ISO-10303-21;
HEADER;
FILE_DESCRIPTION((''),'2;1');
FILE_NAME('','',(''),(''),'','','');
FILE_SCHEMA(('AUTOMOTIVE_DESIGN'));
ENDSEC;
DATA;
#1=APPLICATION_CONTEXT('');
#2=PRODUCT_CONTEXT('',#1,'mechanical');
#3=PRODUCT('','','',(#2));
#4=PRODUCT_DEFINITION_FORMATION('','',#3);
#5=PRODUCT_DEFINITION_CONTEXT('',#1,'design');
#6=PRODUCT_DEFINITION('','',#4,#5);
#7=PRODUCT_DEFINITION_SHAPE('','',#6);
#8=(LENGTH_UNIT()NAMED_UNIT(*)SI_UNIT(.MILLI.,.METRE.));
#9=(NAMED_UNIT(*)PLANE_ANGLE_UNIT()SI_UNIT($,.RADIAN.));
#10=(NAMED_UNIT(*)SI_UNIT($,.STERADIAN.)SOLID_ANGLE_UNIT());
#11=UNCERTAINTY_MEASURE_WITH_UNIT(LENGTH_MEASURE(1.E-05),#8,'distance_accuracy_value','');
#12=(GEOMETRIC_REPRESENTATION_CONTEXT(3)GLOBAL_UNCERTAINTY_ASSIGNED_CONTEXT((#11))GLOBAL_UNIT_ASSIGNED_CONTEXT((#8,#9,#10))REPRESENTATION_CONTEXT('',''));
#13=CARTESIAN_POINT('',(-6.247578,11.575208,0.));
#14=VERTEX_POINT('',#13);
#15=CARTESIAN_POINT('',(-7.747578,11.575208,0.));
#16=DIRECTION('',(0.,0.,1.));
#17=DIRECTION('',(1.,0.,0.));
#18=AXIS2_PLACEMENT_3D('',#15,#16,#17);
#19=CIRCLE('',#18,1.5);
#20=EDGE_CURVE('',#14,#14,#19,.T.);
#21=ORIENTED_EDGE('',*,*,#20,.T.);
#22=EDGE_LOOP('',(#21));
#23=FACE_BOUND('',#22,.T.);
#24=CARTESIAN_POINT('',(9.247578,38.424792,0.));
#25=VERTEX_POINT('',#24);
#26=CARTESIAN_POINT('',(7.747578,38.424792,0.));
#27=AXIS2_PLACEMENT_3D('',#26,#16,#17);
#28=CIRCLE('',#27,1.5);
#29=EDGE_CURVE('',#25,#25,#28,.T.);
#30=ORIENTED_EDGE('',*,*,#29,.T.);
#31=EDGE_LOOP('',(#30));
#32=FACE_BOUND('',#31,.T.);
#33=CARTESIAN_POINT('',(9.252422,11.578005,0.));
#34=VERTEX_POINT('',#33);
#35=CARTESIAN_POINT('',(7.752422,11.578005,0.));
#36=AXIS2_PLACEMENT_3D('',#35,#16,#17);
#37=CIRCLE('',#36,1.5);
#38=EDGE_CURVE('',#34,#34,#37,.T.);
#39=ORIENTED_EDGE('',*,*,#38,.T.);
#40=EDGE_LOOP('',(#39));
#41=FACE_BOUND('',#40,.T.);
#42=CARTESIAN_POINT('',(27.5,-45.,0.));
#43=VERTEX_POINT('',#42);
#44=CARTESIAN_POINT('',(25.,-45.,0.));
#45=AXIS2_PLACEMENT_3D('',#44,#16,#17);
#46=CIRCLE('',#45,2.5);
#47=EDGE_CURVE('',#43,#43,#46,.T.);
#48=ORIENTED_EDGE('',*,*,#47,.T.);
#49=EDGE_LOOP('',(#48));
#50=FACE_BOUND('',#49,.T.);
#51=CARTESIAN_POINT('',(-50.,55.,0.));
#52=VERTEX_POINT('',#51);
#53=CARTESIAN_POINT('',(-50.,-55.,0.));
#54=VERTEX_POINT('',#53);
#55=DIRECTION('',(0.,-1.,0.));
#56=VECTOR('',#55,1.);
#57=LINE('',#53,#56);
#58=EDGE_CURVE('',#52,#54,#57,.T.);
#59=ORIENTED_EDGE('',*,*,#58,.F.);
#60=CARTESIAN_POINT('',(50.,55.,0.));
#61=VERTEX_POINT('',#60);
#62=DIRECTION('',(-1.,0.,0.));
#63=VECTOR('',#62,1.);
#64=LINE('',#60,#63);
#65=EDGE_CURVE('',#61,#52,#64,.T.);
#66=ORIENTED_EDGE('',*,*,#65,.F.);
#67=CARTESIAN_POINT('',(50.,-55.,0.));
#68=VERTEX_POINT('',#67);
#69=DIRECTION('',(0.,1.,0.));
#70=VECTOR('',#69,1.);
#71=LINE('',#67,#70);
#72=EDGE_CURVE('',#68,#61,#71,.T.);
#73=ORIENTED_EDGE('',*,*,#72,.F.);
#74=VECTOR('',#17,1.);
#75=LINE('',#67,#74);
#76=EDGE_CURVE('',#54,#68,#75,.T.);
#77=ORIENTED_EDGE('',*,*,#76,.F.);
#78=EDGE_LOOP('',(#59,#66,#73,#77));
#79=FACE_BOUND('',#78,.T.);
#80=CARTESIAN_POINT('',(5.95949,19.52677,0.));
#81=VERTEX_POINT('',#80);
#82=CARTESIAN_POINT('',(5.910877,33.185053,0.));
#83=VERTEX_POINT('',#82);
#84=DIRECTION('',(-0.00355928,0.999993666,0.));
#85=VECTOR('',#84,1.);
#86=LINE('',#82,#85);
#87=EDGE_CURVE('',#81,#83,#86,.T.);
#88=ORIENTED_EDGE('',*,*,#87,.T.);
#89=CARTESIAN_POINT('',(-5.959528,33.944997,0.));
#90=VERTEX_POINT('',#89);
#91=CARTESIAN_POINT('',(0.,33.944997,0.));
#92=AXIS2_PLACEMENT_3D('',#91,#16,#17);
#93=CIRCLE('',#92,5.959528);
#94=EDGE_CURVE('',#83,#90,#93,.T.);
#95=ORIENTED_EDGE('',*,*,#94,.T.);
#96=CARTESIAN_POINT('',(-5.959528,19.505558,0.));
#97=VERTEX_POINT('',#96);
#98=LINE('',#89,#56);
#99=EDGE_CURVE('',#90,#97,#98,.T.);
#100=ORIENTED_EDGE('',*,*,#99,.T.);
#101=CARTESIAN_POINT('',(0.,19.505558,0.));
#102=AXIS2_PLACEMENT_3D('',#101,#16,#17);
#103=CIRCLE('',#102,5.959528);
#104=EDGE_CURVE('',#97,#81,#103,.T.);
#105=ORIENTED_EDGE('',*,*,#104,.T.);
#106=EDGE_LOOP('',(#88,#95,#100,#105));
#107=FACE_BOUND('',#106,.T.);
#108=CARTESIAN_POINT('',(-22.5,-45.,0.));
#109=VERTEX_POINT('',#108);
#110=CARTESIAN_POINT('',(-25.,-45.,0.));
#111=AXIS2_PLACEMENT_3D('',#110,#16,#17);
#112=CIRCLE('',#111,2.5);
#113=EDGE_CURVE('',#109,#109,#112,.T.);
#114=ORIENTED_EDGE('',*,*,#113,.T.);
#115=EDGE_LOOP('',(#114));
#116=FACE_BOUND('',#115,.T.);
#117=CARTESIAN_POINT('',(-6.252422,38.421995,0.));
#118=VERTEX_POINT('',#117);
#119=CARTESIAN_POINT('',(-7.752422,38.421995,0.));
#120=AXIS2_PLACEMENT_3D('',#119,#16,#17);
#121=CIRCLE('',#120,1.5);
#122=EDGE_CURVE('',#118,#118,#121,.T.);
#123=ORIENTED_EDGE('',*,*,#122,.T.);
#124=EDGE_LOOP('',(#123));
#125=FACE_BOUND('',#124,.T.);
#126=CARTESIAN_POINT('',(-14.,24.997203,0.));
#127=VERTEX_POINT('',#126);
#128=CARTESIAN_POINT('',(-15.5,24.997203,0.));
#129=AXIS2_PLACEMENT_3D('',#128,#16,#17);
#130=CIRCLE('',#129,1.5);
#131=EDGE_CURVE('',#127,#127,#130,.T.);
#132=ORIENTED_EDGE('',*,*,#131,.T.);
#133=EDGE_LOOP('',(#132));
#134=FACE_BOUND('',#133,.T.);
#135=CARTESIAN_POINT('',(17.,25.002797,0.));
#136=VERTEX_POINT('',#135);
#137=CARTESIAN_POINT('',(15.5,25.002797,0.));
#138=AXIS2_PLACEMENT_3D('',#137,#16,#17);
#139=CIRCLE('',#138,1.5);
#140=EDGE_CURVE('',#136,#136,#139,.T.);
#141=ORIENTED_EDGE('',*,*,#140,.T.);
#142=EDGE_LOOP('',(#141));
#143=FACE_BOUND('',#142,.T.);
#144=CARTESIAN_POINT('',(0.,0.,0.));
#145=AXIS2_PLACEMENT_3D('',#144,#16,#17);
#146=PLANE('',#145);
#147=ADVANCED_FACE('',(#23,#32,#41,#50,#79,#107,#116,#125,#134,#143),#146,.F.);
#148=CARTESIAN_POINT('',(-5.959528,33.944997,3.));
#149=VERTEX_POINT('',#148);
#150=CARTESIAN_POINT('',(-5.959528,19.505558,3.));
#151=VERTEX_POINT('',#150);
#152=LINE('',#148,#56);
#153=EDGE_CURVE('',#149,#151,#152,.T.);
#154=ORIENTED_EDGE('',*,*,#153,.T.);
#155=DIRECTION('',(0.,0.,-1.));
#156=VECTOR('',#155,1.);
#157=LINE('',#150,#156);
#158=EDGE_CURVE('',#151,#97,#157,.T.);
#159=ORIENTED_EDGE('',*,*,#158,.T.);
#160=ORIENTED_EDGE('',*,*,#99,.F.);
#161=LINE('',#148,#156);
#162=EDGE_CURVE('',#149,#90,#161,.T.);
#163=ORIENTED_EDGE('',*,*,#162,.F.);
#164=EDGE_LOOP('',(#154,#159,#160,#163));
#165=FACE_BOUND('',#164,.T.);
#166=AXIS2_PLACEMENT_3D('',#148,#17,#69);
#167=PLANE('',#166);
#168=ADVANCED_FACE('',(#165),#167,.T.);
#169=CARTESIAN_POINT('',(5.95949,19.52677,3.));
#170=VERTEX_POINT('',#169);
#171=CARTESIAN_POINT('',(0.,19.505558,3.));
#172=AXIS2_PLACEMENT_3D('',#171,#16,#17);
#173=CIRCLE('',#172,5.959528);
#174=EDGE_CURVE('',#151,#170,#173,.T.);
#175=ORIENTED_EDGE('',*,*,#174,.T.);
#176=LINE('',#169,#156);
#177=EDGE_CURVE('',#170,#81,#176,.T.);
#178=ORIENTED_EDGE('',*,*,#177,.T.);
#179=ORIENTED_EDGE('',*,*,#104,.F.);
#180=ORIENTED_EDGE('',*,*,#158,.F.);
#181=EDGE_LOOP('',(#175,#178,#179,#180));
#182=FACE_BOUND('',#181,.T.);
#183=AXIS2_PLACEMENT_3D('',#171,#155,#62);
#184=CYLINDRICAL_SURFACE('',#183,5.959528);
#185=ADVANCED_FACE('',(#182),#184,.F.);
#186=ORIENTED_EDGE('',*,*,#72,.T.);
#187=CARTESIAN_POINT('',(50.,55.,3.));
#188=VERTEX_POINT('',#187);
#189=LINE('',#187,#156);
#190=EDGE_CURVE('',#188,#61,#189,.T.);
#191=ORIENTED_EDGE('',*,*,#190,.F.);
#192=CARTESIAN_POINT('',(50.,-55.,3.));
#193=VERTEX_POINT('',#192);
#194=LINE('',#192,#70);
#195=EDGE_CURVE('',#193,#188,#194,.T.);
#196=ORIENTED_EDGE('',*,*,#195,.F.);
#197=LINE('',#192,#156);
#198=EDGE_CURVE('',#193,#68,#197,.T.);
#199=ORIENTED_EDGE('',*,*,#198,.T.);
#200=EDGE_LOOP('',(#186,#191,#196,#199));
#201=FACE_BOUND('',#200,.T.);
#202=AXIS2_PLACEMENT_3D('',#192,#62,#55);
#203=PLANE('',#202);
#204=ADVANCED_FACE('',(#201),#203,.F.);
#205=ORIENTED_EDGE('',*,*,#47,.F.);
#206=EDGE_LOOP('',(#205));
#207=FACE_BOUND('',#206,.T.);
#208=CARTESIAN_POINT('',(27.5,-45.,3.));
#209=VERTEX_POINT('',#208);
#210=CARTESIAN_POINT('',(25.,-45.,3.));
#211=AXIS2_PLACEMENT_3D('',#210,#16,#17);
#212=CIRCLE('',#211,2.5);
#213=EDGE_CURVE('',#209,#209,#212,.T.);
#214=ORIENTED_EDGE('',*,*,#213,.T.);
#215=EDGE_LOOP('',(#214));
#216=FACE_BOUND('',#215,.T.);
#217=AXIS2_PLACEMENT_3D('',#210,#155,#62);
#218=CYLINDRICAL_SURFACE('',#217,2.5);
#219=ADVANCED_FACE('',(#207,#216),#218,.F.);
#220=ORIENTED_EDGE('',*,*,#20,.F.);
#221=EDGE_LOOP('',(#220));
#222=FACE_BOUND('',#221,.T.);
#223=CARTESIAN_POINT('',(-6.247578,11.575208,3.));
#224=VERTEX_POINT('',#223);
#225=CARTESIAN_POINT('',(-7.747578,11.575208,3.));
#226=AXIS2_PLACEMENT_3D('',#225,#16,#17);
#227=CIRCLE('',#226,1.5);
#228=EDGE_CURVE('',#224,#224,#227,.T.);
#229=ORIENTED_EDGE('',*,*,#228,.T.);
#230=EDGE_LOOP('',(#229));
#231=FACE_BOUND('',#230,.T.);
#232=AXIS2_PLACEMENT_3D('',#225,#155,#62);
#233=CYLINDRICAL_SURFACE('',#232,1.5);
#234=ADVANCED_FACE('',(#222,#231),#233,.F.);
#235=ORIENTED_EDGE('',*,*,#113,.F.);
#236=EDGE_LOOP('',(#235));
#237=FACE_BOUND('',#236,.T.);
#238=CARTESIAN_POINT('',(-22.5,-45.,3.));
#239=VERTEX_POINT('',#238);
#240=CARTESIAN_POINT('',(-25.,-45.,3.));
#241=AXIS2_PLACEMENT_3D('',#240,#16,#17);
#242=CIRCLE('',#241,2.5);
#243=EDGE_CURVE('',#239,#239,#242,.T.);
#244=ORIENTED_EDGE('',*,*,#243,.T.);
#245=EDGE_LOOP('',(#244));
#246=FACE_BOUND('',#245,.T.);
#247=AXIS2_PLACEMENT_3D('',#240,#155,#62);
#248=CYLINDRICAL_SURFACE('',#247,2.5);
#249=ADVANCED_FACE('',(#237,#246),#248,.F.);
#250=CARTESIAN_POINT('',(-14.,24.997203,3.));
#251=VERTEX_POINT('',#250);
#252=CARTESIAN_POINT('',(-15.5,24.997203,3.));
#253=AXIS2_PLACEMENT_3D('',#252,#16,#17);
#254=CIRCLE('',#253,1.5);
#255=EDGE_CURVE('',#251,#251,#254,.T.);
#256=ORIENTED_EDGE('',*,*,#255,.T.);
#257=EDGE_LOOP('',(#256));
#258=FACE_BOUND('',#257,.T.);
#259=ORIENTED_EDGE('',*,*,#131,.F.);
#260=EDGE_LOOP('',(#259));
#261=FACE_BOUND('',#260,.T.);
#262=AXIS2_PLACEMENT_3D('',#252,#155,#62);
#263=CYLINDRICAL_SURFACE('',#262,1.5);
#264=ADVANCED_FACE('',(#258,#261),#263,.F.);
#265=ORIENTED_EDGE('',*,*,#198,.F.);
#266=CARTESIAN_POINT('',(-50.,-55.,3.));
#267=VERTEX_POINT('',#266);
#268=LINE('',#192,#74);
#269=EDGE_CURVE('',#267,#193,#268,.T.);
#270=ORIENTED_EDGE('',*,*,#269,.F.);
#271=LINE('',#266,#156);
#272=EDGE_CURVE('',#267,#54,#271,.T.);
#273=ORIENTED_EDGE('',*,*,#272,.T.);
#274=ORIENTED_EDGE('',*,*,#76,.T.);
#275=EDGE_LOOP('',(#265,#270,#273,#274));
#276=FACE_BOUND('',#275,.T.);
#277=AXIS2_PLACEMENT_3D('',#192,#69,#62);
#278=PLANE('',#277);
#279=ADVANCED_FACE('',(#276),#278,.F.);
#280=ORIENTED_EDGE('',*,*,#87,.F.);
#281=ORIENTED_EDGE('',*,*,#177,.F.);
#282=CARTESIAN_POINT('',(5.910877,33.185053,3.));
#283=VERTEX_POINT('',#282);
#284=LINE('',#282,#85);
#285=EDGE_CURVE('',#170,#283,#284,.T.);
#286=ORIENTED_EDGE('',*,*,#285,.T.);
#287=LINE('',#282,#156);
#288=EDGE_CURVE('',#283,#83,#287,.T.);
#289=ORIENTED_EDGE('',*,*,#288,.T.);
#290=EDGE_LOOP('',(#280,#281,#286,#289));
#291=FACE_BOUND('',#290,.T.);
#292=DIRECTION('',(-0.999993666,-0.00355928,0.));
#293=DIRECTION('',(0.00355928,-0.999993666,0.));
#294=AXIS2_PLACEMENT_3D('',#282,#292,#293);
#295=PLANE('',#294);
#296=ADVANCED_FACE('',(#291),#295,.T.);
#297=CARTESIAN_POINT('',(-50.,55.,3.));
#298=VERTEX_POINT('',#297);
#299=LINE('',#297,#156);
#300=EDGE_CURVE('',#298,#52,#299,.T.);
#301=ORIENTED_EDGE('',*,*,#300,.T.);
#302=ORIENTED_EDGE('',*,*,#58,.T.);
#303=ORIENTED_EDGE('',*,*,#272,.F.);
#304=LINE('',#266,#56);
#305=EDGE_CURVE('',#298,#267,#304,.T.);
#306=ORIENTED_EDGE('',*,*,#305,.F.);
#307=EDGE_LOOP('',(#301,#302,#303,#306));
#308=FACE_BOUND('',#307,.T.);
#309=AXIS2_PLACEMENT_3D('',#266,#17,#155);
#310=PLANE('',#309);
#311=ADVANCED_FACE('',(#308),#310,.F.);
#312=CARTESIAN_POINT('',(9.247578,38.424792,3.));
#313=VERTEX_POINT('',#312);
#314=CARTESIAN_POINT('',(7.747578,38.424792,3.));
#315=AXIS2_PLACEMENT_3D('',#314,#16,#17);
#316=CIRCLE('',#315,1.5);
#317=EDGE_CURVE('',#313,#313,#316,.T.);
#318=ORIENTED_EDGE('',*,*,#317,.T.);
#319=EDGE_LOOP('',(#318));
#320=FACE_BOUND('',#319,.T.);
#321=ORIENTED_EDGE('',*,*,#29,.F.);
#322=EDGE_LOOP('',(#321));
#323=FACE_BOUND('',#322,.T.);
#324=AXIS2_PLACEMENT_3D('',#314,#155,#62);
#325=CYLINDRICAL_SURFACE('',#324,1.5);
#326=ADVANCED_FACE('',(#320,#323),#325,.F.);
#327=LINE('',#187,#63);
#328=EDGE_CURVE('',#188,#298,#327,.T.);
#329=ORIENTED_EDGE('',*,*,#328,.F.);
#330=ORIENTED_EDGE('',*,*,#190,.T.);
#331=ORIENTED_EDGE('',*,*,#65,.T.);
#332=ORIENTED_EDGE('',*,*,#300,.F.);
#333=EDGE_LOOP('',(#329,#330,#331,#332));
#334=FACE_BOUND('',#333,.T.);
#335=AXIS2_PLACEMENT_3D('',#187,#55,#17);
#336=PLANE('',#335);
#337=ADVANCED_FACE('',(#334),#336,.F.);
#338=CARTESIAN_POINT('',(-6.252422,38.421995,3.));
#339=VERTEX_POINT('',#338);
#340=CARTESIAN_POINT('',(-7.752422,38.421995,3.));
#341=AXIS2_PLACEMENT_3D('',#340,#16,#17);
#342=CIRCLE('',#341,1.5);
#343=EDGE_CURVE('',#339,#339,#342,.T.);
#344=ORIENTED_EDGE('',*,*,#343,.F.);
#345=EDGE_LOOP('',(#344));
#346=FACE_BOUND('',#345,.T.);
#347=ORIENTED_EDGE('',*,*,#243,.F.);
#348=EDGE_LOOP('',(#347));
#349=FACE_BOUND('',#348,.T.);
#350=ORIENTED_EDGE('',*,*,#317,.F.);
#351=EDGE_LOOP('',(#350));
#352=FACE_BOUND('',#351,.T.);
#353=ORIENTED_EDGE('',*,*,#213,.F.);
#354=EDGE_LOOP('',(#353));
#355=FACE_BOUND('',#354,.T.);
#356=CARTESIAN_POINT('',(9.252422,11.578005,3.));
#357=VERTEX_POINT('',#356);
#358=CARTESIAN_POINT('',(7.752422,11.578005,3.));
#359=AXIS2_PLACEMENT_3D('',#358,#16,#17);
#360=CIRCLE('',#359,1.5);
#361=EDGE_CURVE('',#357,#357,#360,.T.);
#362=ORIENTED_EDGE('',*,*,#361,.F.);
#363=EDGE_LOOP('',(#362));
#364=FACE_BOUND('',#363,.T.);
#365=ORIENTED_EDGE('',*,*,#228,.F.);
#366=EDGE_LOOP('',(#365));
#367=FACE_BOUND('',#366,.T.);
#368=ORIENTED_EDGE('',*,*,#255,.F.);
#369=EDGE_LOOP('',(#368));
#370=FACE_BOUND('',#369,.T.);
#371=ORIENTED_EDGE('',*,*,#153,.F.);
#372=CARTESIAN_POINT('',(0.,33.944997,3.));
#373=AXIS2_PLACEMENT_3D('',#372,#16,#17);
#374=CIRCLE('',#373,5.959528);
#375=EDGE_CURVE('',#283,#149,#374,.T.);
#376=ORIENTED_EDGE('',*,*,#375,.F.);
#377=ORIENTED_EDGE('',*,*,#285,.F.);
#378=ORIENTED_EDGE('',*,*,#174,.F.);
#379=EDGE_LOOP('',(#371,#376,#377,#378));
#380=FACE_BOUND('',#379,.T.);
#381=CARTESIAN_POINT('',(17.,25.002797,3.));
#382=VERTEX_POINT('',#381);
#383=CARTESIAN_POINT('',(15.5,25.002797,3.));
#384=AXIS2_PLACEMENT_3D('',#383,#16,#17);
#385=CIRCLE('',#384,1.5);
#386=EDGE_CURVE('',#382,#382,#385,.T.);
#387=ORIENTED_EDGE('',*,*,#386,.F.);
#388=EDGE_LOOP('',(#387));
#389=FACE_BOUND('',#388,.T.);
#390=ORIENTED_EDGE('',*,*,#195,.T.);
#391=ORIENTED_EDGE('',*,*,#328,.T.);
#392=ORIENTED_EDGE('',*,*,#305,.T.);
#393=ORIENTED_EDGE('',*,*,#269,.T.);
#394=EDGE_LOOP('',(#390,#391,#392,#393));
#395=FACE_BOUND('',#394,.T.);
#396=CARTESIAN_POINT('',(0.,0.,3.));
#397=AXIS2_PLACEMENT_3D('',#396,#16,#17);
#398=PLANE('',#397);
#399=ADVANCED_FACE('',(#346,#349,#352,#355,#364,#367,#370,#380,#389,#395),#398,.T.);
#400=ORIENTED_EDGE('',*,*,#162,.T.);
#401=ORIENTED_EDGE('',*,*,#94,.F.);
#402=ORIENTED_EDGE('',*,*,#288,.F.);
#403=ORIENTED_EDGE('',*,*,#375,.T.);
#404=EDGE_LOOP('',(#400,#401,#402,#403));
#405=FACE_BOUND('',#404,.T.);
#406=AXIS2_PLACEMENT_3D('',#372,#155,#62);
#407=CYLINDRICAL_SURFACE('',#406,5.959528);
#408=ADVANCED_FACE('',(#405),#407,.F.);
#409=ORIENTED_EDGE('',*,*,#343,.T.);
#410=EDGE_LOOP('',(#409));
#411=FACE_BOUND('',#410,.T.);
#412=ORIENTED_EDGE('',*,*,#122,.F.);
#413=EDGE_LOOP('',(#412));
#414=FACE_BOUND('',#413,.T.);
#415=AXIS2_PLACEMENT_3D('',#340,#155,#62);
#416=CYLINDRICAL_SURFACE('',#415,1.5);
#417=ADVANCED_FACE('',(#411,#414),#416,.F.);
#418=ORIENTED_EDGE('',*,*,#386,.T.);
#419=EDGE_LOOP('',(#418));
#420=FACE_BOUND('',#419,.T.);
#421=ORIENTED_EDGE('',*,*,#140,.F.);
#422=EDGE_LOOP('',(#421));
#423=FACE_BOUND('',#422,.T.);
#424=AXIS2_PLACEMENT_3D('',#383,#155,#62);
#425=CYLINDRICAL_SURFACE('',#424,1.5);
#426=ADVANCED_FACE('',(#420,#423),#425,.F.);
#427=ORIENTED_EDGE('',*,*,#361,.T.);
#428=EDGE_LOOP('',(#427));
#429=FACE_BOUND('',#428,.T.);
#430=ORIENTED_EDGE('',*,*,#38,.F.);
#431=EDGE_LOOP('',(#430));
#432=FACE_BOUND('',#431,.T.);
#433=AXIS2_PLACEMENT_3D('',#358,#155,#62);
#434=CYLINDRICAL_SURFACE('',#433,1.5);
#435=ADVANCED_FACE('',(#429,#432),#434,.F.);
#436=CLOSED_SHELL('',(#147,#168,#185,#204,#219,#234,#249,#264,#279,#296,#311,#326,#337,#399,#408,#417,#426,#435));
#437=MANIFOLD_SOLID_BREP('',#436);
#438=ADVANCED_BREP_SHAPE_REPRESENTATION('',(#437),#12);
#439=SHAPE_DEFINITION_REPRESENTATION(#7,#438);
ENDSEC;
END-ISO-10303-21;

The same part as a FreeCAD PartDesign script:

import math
import FreeCAD as App
import Part
import Sketcher
from FreeCAD import Vector

doc = App.newDocument("Part")
body = doc.addObject("PartDesign::Body", "Body")

# Sketch on XY plane
sketch1 = body.newObject("Sketcher::SketchObject", "Sketch")
sketch1.AttachmentSupport = (doc.getObject("XY_Plane"), [""])
sketch1.MapMode = "FlatFace"
sketch1.addGeometry(Part.LineSegment(Vector(-50, 55, 0), Vector(-50, -55, 0)), False)
sketch1.addGeometry(Part.LineSegment(Vector(-50, -55, 0), Vector(50, -55, 0)), False)
sketch1.addGeometry(Part.LineSegment(Vector(50, -55, 0), Vector(50, 55, 0)), False)
sketch1.addGeometry(Part.LineSegment(Vector(50, 55, 0), Vector(-50, 55, 0)), False)
sketch1.addGeometry(Part.Circle(Vector(-25, -45, 0), Vector(0, 0, 1), 2.5), False)
sketch1.addGeometry(Part.Circle(Vector(25, -45, 0), Vector(0, 0, 1), 2.5), False)
sketch1.addGeometry(Part.Circle(Vector(-7.7, 11.6, 0), Vector(0, 0, 1), 1.5), False)
sketch1.addGeometry(Part.Circle(Vector(-15.5, 25, 0), Vector(0, 0, 1), 1.5), False)
sketch1.addGeometry(Part.Circle(Vector(-7.8, 38.4, 0), Vector(0, 0, 1), 1.5), False)
sketch1.addGeometry(Part.Circle(Vector(7.8, 11.6, 0), Vector(0, 0, 1), 1.5), False)
sketch1.addGeometry(Part.ArcOfCircle(Part.Circle(Vector(0, 33.9, 0), Vector(0, 0, 1), 6), math.radians(-7), math.radians(180)), False)
sketch1.addGeometry(Part.LineSegment(Vector(5.9, 33.2, 0), Vector(6, 19.5, 0)), False)
sketch1.addGeometry(Part.ArcOfCircle(Part.Circle(Vector(0, 19.5, 0), Vector(0, 0, 1), 6), math.radians(-180), math.radians(0)), False)
sketch1.addGeometry(Part.LineSegment(Vector(-6, 19.5, 0), Vector(-6, 33.9, 0)), False)
sketch1.addGeometry(Part.Circle(Vector(7.7, 38.4, 0), Vector(0, 0, 1), 1.5), False)
sketch1.addGeometry(Part.Circle(Vector(15.5, 25, 0), Vector(0, 0, 1), 1.5), False)
sketch1.addConstraint(Sketcher.Constraint("Coincident", 0, 2, 1, 1))
sketch1.addConstraint(Sketcher.Constraint("Coincident", 1, 2, 2, 1))
sketch1.addConstraint(Sketcher.Constraint("Coincident", 2, 2, 3, 1))
sketch1.addConstraint(Sketcher.Constraint("Coincident", 3, 2, 0, 1))
sketch1.addConstraint(Sketcher.Constraint("Coincident", 10, 1, 11, 1))
sketch1.addConstraint(Sketcher.Constraint("Tangent", 11, 2, 12, 2))
sketch1.addConstraint(Sketcher.Constraint("Tangent", 12, 1, 13, 1))
sketch1.addConstraint(Sketcher.Constraint("Tangent", 13, 2, 10, 2))
sketch1.addConstraint(Sketcher.Constraint("Vertical", 0))
sketch1.addConstraint(Sketcher.Constraint("Horizontal", 1))
sketch1.addConstraint(Sketcher.Constraint("Vertical", 2))
sketch1.addConstraint(Sketcher.Constraint("Horizontal", 3))
sketch1.addConstraint(Sketcher.Constraint("Vertical", 13))
sketch1.addConstraint(Sketcher.Constraint("Equal", 4, 5))
sketch1.addConstraint(Sketcher.Constraint("Equal", 6, 7))
sketch1.addConstraint(Sketcher.Constraint("Equal", 7, 8))
sketch1.addConstraint(Sketcher.Constraint("Equal", 8, 9))
sketch1.addConstraint(Sketcher.Constraint("Equal", 10, 12))
sketch1.addConstraint(Sketcher.Constraint("Equal", 9, 14))
sketch1.addConstraint(Sketcher.Constraint("Equal", 14, 15))
sketch1.addConstraint(Sketcher.Constraint("Symmetric", 0, 2, 2, 2, -1, 1))
sketch1.addConstraint(Sketcher.Constraint("Symmetric", 4, 3, 5, 3, -2))
sketch1.addConstraint(Sketcher.Constraint("PointOnObject", 10, 3, -2))
sketch1.addConstraint(Sketcher.Constraint("Diameter", 4, 5.0))
sketch1.addConstraint(Sketcher.Constraint("Diameter", 6, 3.0))
sketch1.addConstraint(Sketcher.Constraint("DistanceX", 1, 1, 1, 2, 100.0))
sketch1.addConstraint(Sketcher.Constraint("DistanceY", 0, 2, 0, 1, 110.0))
sketch1.addConstraint(Sketcher.Constraint("DistanceX", 4, 3, -1, 1, 25.0))
sketch1.addConstraint(Sketcher.Constraint("DistanceY", 4, 3, -1, 1, 45.0))
sketch1.addConstraint(Sketcher.Constraint("DistanceX", 7, 3, -1, 1, 15.5))
sketch1.addConstraint(Sketcher.Constraint("DistanceX", -1, 1, 15, 3, 15.5))
sketch1.addConstraint(Sketcher.Constraint("DistanceX", 6, 3, 9, 3, 15.5))
sketch1.addConstraint(Sketcher.Constraint("DistanceX", 8, 3, 14, 3, 15.5))
sketch1.addConstraint(Sketcher.Constraint("Radius", 10, 5.959528))
sketch1.addConstraint(Sketcher.Constraint("DistanceY", 10, 3, 8, 3, 4.476999))
sketch1.addConstraint(Sketcher.Constraint("DistanceY", 13, 1, 13, 2, 14.439439))
sketch1.addConstraint(Sketcher.Constraint("DistanceY", 9, 3, 7, 3, 13.419199))
sketch1.addConstraint(Sketcher.Constraint("DistanceY", 15, 3, 10, 3, 8.9422))
sketch1.addConstraint(Sketcher.Constraint("DistanceX", 10, 1, 14, 3, 1.836702))
sketch1.addConstraint(Sketcher.Constraint("Distance", 11, 13.65837))
sketch1.addConstraint(Sketcher.Constraint("DistanceX", 6, 3, -1, 1, 7.747578))
sketch1.addConstraint(Sketcher.Constraint("DistanceY", -1, 1, 11, 2, 19.52677))
sketch1.addConstraint(Sketcher.Constraint("DistanceY", 9, 3, 8, 3, 26.843991))
sketch1.addConstraint(Sketcher.Constraint("DistanceY", 6, 3, 10, 3, 22.369789))
sketch1.addConstraint(Sketcher.Constraint("DistanceY", 7, 3, 14, 3, 13.427589))
pad1 = body.newObject("PartDesign::Pad", "Pad")
pad1.Profile = sketch1
pad1.Length = 3

doc.recompute()
